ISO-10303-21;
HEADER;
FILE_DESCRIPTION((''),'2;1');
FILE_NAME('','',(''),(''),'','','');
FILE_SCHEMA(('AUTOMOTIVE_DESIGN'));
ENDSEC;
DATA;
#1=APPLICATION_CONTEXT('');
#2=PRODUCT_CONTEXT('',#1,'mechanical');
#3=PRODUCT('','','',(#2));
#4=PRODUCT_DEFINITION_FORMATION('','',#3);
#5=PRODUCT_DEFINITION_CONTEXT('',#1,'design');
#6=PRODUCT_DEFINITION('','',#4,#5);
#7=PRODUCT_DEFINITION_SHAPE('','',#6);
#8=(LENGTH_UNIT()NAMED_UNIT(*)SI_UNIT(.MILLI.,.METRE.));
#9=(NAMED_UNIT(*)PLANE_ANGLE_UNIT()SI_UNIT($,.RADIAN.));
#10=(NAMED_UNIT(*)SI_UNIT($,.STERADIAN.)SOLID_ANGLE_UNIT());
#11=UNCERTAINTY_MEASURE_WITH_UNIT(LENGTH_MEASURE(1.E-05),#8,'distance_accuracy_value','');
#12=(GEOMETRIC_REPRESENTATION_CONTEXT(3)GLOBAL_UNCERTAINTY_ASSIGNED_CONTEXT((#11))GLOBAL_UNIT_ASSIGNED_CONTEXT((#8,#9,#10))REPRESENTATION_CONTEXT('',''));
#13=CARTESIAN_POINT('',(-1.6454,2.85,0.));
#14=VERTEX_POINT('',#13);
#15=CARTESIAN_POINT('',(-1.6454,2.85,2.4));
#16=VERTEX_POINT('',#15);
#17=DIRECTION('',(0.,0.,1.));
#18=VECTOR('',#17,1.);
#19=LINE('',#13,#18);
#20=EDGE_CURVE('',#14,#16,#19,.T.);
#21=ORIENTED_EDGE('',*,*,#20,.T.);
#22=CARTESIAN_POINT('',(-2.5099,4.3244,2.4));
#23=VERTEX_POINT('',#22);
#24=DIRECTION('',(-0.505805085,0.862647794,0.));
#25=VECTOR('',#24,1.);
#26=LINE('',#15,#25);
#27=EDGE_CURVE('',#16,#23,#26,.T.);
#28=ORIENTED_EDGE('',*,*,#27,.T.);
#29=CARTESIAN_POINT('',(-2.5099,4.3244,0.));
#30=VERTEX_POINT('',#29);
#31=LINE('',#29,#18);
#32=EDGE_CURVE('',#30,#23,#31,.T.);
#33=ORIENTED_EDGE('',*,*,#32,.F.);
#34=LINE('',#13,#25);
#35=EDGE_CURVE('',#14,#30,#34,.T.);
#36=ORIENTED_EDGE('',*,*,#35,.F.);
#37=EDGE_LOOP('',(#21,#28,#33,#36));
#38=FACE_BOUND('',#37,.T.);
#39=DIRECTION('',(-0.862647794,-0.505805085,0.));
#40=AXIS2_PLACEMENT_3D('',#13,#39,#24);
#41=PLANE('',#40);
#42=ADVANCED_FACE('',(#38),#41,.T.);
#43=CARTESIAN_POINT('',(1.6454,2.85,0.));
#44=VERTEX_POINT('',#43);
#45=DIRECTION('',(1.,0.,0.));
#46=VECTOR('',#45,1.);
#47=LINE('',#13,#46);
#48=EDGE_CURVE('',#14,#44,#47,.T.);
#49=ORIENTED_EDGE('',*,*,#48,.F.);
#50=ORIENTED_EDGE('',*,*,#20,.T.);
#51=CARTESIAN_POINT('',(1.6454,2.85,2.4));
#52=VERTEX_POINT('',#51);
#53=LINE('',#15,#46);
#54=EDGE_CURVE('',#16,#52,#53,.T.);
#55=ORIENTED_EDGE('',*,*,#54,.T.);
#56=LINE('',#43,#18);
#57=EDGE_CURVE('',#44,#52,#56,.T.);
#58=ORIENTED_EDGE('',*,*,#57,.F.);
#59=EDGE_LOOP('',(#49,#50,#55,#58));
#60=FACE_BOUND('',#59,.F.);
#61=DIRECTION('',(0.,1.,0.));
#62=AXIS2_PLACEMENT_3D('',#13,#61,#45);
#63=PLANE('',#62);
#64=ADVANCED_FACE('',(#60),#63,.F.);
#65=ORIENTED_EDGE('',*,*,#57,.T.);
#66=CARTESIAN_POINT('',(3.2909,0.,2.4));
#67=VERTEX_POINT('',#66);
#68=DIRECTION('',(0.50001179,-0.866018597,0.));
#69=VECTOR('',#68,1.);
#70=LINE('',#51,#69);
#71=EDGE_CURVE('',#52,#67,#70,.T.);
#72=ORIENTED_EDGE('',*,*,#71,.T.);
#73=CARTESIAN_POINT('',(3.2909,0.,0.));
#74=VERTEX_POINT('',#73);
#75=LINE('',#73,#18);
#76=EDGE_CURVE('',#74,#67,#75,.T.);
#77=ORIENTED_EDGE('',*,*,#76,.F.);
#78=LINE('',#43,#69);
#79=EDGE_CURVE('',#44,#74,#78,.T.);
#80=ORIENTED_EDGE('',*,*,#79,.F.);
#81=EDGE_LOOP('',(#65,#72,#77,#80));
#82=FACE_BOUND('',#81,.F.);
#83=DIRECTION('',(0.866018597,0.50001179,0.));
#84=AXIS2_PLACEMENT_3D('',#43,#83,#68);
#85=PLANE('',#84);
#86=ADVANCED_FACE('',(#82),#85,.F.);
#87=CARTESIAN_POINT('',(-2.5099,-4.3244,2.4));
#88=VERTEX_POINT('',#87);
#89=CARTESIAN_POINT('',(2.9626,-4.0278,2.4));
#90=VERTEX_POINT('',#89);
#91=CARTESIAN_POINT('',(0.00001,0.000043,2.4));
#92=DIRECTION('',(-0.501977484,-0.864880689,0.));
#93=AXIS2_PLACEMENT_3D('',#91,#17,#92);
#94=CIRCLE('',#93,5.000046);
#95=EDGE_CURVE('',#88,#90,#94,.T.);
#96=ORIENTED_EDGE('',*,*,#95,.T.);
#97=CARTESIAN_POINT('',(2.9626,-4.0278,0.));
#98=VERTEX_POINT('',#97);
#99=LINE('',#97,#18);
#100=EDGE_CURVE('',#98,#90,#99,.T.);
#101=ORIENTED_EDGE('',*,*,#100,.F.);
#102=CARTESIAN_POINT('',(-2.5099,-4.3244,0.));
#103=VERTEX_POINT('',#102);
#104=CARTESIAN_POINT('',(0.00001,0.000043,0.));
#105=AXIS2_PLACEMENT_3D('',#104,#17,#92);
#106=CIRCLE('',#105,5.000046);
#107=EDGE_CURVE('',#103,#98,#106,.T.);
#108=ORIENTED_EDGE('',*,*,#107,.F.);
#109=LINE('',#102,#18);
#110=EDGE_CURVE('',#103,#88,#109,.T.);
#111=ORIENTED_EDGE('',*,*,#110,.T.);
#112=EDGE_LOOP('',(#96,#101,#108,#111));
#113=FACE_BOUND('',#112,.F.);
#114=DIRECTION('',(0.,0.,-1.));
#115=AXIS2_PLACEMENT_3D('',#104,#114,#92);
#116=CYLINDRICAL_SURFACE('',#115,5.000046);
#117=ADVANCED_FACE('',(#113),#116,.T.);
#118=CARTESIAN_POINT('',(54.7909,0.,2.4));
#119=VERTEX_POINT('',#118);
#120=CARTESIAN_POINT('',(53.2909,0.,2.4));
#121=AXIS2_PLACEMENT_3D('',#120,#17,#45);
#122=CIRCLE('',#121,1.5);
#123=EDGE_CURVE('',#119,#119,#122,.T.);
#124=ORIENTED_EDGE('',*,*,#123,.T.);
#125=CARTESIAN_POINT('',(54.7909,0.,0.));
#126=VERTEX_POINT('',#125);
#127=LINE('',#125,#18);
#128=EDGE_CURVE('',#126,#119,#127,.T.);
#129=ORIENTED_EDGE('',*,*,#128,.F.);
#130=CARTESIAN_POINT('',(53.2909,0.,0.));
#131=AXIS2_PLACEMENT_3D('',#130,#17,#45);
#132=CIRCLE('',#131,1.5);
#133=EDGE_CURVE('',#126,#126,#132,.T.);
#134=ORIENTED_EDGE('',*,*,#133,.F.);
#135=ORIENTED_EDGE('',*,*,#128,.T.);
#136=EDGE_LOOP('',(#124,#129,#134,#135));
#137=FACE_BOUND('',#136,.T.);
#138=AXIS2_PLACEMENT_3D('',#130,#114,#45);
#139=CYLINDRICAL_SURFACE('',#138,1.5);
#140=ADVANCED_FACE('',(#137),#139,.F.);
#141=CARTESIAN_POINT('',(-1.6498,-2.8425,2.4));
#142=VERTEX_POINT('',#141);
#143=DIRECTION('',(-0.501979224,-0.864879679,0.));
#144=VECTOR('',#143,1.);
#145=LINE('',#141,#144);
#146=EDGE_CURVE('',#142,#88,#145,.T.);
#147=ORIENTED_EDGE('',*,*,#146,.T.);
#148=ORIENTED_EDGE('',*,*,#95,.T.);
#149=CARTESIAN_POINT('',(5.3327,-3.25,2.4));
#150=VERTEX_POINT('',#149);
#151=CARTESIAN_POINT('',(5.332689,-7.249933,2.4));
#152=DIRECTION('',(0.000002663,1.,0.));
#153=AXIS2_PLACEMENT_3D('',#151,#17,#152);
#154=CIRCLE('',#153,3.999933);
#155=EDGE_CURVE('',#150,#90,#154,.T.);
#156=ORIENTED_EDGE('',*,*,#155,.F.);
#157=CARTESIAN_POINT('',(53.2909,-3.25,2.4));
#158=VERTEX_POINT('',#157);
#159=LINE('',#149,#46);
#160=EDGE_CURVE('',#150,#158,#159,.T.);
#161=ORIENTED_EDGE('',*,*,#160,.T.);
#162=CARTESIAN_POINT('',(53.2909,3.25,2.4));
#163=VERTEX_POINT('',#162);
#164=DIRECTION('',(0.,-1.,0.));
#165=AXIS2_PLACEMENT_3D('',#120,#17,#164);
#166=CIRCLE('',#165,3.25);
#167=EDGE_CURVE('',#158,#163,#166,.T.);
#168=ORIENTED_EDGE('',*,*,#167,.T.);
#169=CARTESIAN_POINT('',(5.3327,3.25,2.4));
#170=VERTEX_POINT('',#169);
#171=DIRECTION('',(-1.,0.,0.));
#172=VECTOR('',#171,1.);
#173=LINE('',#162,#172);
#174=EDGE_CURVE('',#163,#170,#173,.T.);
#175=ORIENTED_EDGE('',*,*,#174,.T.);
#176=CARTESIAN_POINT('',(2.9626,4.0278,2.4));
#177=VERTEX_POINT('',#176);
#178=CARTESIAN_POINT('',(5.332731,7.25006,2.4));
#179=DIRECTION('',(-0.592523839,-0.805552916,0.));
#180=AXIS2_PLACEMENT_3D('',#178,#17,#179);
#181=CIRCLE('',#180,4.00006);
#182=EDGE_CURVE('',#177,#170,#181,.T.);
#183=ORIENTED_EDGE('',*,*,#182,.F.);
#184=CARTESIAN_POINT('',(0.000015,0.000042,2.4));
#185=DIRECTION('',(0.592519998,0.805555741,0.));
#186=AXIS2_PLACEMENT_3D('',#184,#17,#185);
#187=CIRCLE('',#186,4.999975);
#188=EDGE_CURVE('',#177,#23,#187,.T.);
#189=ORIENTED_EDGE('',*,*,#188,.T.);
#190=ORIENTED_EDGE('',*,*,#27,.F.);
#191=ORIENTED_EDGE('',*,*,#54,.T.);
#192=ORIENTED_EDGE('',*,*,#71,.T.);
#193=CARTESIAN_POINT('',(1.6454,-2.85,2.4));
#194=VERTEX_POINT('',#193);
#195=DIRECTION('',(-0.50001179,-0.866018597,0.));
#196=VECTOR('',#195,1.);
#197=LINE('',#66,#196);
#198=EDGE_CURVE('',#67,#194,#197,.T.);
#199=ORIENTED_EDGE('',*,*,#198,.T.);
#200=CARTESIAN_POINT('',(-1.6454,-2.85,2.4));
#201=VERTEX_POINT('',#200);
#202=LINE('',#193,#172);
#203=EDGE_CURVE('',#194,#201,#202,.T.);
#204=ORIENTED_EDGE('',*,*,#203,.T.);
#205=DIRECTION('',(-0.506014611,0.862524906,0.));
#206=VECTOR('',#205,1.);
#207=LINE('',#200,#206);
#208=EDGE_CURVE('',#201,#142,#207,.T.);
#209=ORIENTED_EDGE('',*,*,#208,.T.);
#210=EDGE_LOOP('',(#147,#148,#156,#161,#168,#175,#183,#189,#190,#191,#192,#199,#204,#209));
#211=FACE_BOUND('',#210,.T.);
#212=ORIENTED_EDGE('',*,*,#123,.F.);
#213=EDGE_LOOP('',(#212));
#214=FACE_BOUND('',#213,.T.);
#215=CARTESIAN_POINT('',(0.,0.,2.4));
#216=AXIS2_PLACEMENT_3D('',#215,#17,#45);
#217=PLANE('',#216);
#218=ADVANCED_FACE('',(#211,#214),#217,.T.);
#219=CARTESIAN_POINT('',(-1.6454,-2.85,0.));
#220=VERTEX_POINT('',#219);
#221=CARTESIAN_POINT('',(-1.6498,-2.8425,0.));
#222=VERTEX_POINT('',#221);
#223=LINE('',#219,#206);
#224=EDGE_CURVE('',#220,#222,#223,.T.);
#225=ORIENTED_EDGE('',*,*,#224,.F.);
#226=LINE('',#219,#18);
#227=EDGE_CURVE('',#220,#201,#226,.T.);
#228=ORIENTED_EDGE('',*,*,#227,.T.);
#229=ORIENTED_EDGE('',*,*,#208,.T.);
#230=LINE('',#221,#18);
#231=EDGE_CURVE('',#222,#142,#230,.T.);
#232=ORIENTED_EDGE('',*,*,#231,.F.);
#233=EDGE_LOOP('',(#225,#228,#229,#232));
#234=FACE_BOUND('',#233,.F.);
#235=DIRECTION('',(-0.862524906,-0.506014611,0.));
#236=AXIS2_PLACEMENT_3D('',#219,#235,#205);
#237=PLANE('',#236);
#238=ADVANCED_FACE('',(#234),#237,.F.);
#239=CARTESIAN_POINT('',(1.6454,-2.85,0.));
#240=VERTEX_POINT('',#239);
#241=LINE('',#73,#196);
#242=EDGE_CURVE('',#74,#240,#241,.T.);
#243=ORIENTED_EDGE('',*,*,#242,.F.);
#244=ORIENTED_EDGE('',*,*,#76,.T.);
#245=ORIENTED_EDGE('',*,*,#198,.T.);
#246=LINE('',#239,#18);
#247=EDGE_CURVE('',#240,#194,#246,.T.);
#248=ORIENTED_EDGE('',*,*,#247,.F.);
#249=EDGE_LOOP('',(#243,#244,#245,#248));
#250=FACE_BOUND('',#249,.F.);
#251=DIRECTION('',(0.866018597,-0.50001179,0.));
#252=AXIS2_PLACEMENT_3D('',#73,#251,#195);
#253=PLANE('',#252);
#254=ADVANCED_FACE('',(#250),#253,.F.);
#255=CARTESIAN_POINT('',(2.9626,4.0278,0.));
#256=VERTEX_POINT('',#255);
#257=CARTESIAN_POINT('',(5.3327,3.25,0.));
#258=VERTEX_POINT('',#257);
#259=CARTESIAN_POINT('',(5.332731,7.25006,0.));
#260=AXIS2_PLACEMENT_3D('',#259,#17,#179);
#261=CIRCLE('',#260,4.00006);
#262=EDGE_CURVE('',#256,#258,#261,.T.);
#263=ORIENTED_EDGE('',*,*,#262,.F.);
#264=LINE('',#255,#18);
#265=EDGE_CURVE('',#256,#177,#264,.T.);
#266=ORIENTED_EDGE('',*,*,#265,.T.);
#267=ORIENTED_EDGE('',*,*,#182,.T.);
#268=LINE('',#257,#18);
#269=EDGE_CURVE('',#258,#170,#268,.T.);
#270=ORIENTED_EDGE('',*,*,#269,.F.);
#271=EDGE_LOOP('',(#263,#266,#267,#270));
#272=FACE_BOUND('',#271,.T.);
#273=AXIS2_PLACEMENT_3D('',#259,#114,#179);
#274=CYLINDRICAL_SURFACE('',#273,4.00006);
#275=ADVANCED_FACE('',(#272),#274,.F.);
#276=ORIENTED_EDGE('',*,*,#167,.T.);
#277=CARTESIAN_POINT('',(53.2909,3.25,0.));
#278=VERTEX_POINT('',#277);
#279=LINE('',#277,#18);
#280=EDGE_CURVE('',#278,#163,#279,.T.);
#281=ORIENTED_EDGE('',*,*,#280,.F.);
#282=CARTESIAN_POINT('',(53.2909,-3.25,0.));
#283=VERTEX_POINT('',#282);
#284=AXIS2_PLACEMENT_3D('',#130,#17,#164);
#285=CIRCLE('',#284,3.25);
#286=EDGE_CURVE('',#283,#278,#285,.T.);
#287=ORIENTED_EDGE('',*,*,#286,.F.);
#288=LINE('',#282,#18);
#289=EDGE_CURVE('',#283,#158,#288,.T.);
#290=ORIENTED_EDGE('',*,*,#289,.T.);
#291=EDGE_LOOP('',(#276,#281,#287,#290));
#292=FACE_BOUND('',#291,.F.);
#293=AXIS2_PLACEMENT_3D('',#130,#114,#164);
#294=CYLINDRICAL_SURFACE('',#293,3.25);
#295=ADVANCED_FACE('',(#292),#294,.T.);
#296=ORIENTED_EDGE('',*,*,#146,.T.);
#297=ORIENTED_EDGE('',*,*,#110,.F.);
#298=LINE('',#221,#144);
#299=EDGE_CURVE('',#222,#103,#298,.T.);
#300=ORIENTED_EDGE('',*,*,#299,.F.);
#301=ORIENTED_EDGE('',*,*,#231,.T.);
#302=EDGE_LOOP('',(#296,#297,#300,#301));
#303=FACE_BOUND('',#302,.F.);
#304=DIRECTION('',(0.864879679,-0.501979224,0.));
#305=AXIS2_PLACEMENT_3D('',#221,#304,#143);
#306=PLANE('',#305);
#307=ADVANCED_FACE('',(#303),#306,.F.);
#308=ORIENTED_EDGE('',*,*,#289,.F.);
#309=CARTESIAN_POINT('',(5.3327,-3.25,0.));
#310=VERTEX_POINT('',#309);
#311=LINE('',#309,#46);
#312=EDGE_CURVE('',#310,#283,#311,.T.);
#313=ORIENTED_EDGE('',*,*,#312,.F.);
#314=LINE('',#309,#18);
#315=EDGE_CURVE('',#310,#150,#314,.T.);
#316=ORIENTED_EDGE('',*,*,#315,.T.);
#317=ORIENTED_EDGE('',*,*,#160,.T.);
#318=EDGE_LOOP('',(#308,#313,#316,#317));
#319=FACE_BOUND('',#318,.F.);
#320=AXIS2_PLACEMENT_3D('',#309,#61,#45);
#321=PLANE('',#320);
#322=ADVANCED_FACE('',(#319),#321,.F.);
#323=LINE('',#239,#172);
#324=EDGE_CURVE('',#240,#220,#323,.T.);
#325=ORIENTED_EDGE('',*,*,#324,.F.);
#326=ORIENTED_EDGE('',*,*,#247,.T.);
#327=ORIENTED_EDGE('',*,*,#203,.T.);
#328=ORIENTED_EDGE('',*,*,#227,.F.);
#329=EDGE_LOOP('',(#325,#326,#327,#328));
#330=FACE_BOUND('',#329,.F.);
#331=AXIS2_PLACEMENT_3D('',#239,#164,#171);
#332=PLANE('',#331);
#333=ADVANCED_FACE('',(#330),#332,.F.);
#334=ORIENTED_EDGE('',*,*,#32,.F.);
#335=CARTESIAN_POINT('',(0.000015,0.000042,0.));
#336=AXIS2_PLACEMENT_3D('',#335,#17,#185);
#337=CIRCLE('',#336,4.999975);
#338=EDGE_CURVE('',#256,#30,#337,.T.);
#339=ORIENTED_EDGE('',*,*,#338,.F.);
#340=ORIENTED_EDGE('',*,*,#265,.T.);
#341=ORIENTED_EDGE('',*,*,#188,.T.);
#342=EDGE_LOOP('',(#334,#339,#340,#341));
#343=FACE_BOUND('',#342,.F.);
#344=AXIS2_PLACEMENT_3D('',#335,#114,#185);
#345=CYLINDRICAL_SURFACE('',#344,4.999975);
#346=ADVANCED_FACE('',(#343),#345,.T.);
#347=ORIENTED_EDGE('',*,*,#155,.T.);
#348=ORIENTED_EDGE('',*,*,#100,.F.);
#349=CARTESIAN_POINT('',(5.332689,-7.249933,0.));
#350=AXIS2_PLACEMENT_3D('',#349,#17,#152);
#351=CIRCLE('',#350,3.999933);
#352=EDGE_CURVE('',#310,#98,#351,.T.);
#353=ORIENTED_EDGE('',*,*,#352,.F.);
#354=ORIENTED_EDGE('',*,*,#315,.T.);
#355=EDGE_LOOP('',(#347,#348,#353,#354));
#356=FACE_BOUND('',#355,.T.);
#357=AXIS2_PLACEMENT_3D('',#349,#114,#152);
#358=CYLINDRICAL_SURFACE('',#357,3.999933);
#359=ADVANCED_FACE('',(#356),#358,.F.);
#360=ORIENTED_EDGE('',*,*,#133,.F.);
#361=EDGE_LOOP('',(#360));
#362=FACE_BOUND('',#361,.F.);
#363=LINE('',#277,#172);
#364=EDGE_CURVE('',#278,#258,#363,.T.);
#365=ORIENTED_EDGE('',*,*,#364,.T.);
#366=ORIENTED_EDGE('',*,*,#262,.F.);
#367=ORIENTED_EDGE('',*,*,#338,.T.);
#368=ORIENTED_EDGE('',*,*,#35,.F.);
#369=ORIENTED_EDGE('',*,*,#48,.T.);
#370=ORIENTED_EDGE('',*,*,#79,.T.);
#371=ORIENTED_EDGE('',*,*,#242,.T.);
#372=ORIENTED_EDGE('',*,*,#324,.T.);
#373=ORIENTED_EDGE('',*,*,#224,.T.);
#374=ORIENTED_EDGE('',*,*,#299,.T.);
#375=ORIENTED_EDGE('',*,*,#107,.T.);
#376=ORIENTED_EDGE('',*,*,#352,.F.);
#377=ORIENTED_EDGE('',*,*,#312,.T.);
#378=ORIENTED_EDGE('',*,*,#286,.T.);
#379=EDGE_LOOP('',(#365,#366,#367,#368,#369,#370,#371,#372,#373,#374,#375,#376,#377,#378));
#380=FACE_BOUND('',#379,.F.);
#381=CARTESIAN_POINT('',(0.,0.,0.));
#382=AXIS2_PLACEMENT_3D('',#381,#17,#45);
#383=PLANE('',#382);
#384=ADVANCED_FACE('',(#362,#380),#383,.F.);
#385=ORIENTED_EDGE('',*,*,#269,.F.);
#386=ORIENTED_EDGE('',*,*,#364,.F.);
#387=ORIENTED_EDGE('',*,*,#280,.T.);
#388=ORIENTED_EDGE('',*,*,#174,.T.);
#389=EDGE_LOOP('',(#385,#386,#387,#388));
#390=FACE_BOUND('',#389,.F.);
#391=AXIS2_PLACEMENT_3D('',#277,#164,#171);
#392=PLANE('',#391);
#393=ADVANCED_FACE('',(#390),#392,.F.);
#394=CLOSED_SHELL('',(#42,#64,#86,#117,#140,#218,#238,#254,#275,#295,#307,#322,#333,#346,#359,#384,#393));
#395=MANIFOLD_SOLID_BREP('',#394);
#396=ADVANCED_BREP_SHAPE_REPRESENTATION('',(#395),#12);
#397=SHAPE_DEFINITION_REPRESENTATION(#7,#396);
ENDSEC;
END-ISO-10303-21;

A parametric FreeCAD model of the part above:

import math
import FreeCAD as App
import Part
import Sketcher

V = App.Vector
Q = App.Units.Quantity

doc = App.newDocument("Part")
body = doc.addObject("PartDesign::Body", "Body")

sketch1 = doc.addObject("Sketcher::SketchObject", "Sketch")
body.addObject(sketch1)
sketch1.AttachmentSupport = (doc.XY_Plane, [""])
sketch1.MapMode = "FlatFace"
sketch1.addGeometry([
    Part.LineSegment(V(-1.645, 2.85, 0), V(1.645, 2.85, 0)),
    Part.LineSegment(V(1.645, 2.85, 0), V(3.291, 0, 0)),
    Part.LineSegment(V(3.291, 0, 0), V(1.645, -2.85, 0)),
    Part.LineSegment(V(1.645, -2.85, 0), V(-1.645, -2.85, 0)),
    Part.LineSegment(V(-1.645, -2.85, 0), V(-1.65, -2.842, 0)),
    Part.LineSegment(V(-1.65, -2.842, 0), V(-2.51, -4.324, 0)),
    Part.ArcOfCircle(Part.Circle(V(0, 0, 0), V(0, 0, 1), 5), math.radians(-120), math.radians(-54)),
    Part.ArcOfCircle(Part.Circle(V(5.333, -7.25, 0), V(0, 0, 1), 4), math.radians(90), math.radians(126)),
    Part.LineSegment(V(5.333, -3.25, 0), V(53.291, -3.25, 0)),
    Part.ArcOfCircle(Part.Circle(V(53.291, 0, 0), V(0, 0, 1), 3.25), math.radians(-90), math.radians(90)),
    Part.LineSegment(V(53.291, 3.25, 0), V(5.333, 3.25, 0)),
    Part.ArcOfCircle(Part.Circle(V(5.333, 7.25, 0), V(0, 0, 1), 4), math.radians(-126), math.radians(-90)),
    Part.ArcOfCircle(Part.Circle(V(0, 0, 0), V(0, 0, 1), 5), math.radians(54), math.radians(120)),
    Part.LineSegment(V(-2.51, 4.324, 0), V(-1.645, 2.85, 0)),
    Part.Circle(V(53.291, 0, 0), V(0, 0, 1), 1.5),
], False)
sketch1.addConstraint([
    Sketcher.Constraint("Coincident", 0, 2, 1, 1),
    Sketcher.Constraint("Coincident", 1, 2, 2, 1),
    Sketcher.Constraint("Coincident", 2, 2, 3, 1),
    Sketcher.Constraint("Coincident", 3, 2, 4, 1),
    Sketcher.Constraint("Coincident", 4, 2, 5, 1),
    Sketcher.Constraint("Coincident", 5, 2, 6, 1),
    Sketcher.Constraint("Tangent", 6, 2, 7, 2),
    Sketcher.Constraint("Tangent", 7, 1, 8, 1),
    Sketcher.Constraint("Tangent", 8, 2, 9, 1),
    Sketcher.Constraint("Tangent", 9, 2, 10, 1),
    Sketcher.Constraint("Tangent", 10, 2, 11, 2),
    Sketcher.Constraint("Tangent", 11, 1, 12, 1),
    Sketcher.Constraint("Coincident", 12, 2, 13, 1),
    Sketcher.Constraint("Coincident", 13, 2, 0, 1),
    Sketcher.Constraint("Horizontal", 0),
    Sketcher.Constraint("Horizontal", 3),
    Sketcher.Constraint("Horizontal", 8),
    Sketcher.Constraint("Horizontal", 10),
    Sketcher.Constraint("Coincident", 6, 3, -1, 1),
    Sketcher.Constraint("Coincident", 12, 3, -1, 1),
    Sketcher.Constraint("Coincident", 14, 3, 9, 3),
    Sketcher.Constraint("Equal", 7, 11),
    Sketcher.Constraint("Equal", 6, 12),
    Sketcher.Constraint("Symmetric", 0, 2, 3, 2, -1, 1),
    Sketcher.Constraint("PointOnObject", 9, 3, -1),
    Sketcher.Constraint("PointOnObject", 1, 2, -1),
    Sketcher.Constraint("Parallel", 4, 13),
    Sketcher.Constraint("Vertical", 0, 2, 2, 2),
    Sketcher.Constraint("Vertical", 5, 2, 12, 2),
    Sketcher.Constraint("Vertical", 3, 2, 13, 2),
    Sketcher.Constraint("Diameter", 14, 3.0),
    Sketcher.Constraint("Radius", 7, 4.0),
    Sketcher.Constraint("Radius", 9, 3.25),
    Sketcher.Constraint("Radius", 6, 5.0),
    Sketcher.Constraint("DistanceY", 2, 2, 0, 2, 5.7),
    Sketcher.Constraint("Angle", 1, Q("-59.9992 deg")),
    Sketcher.Constraint("Angle", 5, Q("-120.131 deg")),
    Sketcher.Constraint("DistanceX", 5, 2, -1, 1, 2.51),
    Sketcher.Constraint("DistanceX", 5, 2, 4, 2, 0.86),
    Sketcher.Constraint("DistanceX", 8, 1, 8, 2, 47.9582),
])
pad1 = doc.addObject("PartDesign::Pad", "Pad")
body.addObject(pad1)
pad1.Profile = sketch1
pad1.Length = 2.4

doc.recompute()
